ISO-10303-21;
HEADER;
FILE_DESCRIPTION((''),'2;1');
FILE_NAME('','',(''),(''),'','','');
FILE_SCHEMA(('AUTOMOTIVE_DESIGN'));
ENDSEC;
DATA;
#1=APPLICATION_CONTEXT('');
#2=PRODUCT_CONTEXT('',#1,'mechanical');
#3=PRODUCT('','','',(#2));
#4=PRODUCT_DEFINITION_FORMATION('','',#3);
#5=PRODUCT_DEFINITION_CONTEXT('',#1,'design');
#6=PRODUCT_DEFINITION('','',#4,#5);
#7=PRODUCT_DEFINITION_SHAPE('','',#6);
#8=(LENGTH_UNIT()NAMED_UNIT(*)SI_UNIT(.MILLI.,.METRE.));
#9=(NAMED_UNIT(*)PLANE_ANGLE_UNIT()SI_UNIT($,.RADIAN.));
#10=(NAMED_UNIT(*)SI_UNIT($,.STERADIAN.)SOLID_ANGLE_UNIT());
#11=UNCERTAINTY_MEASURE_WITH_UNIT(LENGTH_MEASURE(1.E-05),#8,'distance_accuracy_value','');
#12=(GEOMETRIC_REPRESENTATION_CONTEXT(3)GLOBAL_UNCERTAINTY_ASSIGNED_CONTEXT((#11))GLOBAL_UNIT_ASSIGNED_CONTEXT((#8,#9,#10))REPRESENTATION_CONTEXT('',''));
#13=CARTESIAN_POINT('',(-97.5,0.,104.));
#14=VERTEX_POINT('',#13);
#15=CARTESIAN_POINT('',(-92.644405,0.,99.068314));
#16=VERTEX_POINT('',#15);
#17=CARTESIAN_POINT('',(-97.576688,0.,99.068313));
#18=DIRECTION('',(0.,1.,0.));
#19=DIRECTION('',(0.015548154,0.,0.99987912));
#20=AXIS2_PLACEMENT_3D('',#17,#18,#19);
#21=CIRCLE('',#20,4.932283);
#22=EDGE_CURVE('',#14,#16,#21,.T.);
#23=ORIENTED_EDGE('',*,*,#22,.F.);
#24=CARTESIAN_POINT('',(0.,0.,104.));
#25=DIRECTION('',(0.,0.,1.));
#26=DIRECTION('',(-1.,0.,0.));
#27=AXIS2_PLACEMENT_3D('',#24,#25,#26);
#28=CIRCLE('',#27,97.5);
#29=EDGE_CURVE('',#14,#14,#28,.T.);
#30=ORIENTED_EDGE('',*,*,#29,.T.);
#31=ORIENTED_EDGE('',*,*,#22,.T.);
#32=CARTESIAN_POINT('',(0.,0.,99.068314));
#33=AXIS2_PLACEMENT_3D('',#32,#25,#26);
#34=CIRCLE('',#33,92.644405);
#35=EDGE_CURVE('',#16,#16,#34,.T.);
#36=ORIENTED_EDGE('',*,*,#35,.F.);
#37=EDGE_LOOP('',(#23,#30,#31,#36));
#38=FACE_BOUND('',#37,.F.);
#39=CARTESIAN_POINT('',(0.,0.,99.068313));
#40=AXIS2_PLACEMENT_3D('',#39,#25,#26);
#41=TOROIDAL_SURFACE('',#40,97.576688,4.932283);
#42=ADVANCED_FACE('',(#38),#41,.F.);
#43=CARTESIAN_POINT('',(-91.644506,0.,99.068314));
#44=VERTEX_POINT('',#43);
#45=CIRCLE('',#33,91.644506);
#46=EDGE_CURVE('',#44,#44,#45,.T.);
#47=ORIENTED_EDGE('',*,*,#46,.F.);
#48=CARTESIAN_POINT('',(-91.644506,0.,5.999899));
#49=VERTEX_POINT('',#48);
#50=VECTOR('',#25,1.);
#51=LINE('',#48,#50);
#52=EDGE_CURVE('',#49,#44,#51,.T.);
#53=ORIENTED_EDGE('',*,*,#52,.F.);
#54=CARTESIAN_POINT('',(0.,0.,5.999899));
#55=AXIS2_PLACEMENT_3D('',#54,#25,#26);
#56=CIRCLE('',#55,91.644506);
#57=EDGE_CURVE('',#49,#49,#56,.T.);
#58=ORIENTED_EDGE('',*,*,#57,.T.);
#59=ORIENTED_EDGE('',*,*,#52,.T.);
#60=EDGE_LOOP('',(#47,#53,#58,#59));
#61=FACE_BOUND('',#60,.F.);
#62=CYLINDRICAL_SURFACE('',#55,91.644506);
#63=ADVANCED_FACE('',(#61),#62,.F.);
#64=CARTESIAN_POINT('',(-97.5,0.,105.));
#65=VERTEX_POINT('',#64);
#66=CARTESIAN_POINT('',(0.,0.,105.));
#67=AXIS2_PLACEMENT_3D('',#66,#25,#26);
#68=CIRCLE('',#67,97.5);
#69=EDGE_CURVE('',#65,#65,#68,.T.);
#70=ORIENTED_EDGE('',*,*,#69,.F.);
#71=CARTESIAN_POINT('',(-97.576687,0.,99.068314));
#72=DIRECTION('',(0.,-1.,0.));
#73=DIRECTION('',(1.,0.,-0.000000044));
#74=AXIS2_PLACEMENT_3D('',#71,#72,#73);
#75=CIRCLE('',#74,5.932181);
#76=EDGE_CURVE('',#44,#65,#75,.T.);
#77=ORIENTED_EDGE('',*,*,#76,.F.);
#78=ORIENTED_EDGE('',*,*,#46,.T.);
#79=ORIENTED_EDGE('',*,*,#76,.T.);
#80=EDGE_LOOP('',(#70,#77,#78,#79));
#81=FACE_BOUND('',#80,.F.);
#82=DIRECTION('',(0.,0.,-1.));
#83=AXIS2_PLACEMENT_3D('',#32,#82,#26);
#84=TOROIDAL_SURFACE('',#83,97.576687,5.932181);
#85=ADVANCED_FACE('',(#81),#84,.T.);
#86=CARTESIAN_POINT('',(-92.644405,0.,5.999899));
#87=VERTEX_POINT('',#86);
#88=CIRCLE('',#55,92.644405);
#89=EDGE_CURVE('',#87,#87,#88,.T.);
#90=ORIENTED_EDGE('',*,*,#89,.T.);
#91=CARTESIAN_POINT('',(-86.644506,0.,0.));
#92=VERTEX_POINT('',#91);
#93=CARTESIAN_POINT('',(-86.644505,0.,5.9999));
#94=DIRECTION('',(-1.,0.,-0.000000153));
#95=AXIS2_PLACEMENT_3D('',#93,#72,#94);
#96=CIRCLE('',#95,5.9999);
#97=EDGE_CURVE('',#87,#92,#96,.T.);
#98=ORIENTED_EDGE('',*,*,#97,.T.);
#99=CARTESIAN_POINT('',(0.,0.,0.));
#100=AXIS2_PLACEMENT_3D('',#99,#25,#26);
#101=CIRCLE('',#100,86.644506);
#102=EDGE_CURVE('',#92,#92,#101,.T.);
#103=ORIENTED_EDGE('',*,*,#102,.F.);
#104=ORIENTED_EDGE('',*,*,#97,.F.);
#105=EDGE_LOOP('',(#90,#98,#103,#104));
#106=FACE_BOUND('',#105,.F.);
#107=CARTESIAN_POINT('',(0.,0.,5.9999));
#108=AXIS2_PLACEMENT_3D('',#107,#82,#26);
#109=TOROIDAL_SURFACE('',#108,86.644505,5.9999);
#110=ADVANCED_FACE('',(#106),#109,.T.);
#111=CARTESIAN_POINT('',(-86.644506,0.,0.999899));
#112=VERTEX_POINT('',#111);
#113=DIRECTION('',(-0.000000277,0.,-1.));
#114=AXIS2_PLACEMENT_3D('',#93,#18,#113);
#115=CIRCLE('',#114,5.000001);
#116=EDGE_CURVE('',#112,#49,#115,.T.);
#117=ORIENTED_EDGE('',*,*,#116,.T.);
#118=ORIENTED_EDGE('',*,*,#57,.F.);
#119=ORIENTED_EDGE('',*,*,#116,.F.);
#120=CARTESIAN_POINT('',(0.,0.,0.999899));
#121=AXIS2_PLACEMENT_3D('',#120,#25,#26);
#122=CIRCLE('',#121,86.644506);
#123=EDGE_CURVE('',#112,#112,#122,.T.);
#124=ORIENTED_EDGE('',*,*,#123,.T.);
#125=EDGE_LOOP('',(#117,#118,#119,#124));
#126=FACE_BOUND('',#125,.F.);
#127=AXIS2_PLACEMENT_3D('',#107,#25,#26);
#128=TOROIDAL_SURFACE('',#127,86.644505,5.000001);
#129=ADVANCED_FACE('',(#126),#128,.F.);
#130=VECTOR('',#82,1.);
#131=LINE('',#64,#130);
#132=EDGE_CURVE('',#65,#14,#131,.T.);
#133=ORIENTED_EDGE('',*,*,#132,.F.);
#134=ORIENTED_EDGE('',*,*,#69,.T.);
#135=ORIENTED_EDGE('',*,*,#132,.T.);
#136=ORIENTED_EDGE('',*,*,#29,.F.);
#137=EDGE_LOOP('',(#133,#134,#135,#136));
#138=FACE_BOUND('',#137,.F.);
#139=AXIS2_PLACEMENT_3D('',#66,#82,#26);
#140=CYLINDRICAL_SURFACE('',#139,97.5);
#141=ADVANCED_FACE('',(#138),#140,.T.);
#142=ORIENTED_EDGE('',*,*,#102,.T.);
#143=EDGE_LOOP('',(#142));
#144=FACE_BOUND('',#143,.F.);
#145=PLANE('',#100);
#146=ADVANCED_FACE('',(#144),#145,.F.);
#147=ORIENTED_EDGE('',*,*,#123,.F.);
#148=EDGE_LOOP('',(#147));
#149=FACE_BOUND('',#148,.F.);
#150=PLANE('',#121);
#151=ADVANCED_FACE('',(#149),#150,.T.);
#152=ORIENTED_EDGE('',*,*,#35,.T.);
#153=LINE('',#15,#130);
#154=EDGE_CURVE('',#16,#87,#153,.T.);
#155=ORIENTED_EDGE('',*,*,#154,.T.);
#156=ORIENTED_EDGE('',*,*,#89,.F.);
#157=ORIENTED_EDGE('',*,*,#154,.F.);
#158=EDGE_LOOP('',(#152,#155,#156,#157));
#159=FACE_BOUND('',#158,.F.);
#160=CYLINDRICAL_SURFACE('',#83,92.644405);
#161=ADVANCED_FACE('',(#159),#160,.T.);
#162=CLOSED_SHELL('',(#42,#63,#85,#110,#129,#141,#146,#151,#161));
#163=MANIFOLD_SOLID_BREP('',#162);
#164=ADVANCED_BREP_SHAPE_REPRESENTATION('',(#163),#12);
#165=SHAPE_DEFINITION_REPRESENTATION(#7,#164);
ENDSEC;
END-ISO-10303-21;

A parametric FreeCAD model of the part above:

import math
import FreeCAD as App
import Part
import Sketcher

doc = App.newDocument("Part")
params = doc.addObject("Spreadsheet::Sheet", "Params")
for row, (alias, value) in enumerate([
    ("sketch1_radius", "5.000001 mm"),
    ("sketch1_height", "1 mm"),
    ("revolution_angle", "360 deg"),
], start=1):
    params.set(f"A{row}", alias)
    params.set(f"B{row}", "=" + value)
    params.setAlias(f"B{row}", alias)

body = doc.addObject("PartDesign::Body", "Body")

# Sketch on XZ plane
sketch1 = body.newObject("Sketcher::SketchObject", "Sketch")
sketch1.AttachmentSupport = (doc.getObject("XZ_Plane"), [""])
sketch1.MapMode = "FlatFace"
sketch1.addGeometry([
    Part.LineSegment(App.Vector(-86.644506, 0, 0), App.Vector(0, 0, 0)),  # 0
    Part.LineSegment(App.Vector(0, 0, 0), App.Vector(0, 0.999899, 0)),  # 1
    Part.LineSegment(App.Vector(0, 0.999899, 0), App.Vector(-86.644506, 0.999899, 0)),  # 2
    Part.ArcOfCircle(Part.Circle(App.Vector(-86.644505, 5.9999, 0), App.Vector(0, 0, 1), 5.000001), math.radians(-179.999984), math.radians(-90.000016)),  # 3
    Part.LineSegment(App.Vector(-91.644506, 5.999899, 0), App.Vector(-91.644506, 99.068314, 0)),  # 4
    Part.ArcOfCircle(Part.Circle(App.Vector(-97.576687, 99.068314, 0), App.Vector(0, 0, 1), 5.932181), math.radians(-0.000003), math.radians(89.259296)),  # 5
    Part.LineSegment(App.Vector(-97.5, 105, 0), App.Vector(-97.5, 104, 0)),  # 6
    Part.ArcOfCircle(Part.Circle(App.Vector(-97.576688, 99.068313, 0), App.Vector(0, 0, 1), 4.932283), math.radians(0.000008), math.radians(89.109121)),  # 7
    Part.LineSegment(App.Vector(-92.644405, 99.068314, 0), App.Vector(-92.644405, 5.999899, 0)),  # 8
    Part.ArcOfCircle(Part.Circle(App.Vector(-86.644505, 5.9999, 0), App.Vector(0, 0, 1), 5.9999), math.radians(-179.999991), math.radians(-90.000009)),  # 9
], False)
sketch1.addConstraint([
    Sketcher.Constraint("Coincident", 0, 2, 1, 1),
    Sketcher.Constraint("Coincident", 1, 2, 2, 1),
    Sketcher.Constraint("Tangent", 2, 2, 3, 2),
    Sketcher.Constraint("Tangent", 3, 1, 4, 1),
    Sketcher.Constraint("Tangent", 4, 2, 5, 1),
    Sketcher.Constraint("Coincident", 5, 2, 6, 1),
    Sketcher.Constraint("Coincident", 6, 2, 7, 2),
    Sketcher.Constraint("Tangent", 7, 1, 8, 1),
    Sketcher.Constraint("Tangent", 8, 2, 9, 1),
    Sketcher.Constraint("Tangent", 9, 2, 0, 1),
    Sketcher.Constraint("Horizontal", 0),
    Sketcher.Constraint("Vertical", 1),
    Sketcher.Constraint("Horizontal", 2),
    Sketcher.Constraint("Vertical", 4),
    Sketcher.Constraint("Vertical", 6),
    Sketcher.Constraint("Vertical", 8),
    Sketcher.Constraint("Coincident", 0, 2, -1, 1),
    Sketcher.Constraint("Coincident", 7, 3, 5, 3),
    Sketcher.Constraint("Coincident", 9, 3, 3, 3),
    Sketcher.Constraint("Radius", 3, 5.000001),
    Sketcher.Constraint("DistanceY", 6, 2, 6, 1, 1.0),
    Sketcher.Constraint("DistanceY", -1, 1, 5, 2, 105.0),
    Sketcher.Constraint("DistanceX", 5, 2, -1, 1, 97.5),
    Sketcher.Constraint("Radius", 5, 5.932181),
    Sketcher.Constraint("DistanceX", 0, 1, 0, 2, 86.644506),
])
sketch1.setExpression("Constraints[19]", "Params.sketch1_radius")
sketch1.setExpression("Constraints[20]", "Params.sketch1_height")
revolution = body.newObject("PartDesign::Revolution", "Revolution")
revolution.Profile = sketch1
revolution.ReferenceAxis = (sketch1, ["V_Axis"])
revolution.setExpression("Angle", "Params.revolution_angle")

doc.recompute()
